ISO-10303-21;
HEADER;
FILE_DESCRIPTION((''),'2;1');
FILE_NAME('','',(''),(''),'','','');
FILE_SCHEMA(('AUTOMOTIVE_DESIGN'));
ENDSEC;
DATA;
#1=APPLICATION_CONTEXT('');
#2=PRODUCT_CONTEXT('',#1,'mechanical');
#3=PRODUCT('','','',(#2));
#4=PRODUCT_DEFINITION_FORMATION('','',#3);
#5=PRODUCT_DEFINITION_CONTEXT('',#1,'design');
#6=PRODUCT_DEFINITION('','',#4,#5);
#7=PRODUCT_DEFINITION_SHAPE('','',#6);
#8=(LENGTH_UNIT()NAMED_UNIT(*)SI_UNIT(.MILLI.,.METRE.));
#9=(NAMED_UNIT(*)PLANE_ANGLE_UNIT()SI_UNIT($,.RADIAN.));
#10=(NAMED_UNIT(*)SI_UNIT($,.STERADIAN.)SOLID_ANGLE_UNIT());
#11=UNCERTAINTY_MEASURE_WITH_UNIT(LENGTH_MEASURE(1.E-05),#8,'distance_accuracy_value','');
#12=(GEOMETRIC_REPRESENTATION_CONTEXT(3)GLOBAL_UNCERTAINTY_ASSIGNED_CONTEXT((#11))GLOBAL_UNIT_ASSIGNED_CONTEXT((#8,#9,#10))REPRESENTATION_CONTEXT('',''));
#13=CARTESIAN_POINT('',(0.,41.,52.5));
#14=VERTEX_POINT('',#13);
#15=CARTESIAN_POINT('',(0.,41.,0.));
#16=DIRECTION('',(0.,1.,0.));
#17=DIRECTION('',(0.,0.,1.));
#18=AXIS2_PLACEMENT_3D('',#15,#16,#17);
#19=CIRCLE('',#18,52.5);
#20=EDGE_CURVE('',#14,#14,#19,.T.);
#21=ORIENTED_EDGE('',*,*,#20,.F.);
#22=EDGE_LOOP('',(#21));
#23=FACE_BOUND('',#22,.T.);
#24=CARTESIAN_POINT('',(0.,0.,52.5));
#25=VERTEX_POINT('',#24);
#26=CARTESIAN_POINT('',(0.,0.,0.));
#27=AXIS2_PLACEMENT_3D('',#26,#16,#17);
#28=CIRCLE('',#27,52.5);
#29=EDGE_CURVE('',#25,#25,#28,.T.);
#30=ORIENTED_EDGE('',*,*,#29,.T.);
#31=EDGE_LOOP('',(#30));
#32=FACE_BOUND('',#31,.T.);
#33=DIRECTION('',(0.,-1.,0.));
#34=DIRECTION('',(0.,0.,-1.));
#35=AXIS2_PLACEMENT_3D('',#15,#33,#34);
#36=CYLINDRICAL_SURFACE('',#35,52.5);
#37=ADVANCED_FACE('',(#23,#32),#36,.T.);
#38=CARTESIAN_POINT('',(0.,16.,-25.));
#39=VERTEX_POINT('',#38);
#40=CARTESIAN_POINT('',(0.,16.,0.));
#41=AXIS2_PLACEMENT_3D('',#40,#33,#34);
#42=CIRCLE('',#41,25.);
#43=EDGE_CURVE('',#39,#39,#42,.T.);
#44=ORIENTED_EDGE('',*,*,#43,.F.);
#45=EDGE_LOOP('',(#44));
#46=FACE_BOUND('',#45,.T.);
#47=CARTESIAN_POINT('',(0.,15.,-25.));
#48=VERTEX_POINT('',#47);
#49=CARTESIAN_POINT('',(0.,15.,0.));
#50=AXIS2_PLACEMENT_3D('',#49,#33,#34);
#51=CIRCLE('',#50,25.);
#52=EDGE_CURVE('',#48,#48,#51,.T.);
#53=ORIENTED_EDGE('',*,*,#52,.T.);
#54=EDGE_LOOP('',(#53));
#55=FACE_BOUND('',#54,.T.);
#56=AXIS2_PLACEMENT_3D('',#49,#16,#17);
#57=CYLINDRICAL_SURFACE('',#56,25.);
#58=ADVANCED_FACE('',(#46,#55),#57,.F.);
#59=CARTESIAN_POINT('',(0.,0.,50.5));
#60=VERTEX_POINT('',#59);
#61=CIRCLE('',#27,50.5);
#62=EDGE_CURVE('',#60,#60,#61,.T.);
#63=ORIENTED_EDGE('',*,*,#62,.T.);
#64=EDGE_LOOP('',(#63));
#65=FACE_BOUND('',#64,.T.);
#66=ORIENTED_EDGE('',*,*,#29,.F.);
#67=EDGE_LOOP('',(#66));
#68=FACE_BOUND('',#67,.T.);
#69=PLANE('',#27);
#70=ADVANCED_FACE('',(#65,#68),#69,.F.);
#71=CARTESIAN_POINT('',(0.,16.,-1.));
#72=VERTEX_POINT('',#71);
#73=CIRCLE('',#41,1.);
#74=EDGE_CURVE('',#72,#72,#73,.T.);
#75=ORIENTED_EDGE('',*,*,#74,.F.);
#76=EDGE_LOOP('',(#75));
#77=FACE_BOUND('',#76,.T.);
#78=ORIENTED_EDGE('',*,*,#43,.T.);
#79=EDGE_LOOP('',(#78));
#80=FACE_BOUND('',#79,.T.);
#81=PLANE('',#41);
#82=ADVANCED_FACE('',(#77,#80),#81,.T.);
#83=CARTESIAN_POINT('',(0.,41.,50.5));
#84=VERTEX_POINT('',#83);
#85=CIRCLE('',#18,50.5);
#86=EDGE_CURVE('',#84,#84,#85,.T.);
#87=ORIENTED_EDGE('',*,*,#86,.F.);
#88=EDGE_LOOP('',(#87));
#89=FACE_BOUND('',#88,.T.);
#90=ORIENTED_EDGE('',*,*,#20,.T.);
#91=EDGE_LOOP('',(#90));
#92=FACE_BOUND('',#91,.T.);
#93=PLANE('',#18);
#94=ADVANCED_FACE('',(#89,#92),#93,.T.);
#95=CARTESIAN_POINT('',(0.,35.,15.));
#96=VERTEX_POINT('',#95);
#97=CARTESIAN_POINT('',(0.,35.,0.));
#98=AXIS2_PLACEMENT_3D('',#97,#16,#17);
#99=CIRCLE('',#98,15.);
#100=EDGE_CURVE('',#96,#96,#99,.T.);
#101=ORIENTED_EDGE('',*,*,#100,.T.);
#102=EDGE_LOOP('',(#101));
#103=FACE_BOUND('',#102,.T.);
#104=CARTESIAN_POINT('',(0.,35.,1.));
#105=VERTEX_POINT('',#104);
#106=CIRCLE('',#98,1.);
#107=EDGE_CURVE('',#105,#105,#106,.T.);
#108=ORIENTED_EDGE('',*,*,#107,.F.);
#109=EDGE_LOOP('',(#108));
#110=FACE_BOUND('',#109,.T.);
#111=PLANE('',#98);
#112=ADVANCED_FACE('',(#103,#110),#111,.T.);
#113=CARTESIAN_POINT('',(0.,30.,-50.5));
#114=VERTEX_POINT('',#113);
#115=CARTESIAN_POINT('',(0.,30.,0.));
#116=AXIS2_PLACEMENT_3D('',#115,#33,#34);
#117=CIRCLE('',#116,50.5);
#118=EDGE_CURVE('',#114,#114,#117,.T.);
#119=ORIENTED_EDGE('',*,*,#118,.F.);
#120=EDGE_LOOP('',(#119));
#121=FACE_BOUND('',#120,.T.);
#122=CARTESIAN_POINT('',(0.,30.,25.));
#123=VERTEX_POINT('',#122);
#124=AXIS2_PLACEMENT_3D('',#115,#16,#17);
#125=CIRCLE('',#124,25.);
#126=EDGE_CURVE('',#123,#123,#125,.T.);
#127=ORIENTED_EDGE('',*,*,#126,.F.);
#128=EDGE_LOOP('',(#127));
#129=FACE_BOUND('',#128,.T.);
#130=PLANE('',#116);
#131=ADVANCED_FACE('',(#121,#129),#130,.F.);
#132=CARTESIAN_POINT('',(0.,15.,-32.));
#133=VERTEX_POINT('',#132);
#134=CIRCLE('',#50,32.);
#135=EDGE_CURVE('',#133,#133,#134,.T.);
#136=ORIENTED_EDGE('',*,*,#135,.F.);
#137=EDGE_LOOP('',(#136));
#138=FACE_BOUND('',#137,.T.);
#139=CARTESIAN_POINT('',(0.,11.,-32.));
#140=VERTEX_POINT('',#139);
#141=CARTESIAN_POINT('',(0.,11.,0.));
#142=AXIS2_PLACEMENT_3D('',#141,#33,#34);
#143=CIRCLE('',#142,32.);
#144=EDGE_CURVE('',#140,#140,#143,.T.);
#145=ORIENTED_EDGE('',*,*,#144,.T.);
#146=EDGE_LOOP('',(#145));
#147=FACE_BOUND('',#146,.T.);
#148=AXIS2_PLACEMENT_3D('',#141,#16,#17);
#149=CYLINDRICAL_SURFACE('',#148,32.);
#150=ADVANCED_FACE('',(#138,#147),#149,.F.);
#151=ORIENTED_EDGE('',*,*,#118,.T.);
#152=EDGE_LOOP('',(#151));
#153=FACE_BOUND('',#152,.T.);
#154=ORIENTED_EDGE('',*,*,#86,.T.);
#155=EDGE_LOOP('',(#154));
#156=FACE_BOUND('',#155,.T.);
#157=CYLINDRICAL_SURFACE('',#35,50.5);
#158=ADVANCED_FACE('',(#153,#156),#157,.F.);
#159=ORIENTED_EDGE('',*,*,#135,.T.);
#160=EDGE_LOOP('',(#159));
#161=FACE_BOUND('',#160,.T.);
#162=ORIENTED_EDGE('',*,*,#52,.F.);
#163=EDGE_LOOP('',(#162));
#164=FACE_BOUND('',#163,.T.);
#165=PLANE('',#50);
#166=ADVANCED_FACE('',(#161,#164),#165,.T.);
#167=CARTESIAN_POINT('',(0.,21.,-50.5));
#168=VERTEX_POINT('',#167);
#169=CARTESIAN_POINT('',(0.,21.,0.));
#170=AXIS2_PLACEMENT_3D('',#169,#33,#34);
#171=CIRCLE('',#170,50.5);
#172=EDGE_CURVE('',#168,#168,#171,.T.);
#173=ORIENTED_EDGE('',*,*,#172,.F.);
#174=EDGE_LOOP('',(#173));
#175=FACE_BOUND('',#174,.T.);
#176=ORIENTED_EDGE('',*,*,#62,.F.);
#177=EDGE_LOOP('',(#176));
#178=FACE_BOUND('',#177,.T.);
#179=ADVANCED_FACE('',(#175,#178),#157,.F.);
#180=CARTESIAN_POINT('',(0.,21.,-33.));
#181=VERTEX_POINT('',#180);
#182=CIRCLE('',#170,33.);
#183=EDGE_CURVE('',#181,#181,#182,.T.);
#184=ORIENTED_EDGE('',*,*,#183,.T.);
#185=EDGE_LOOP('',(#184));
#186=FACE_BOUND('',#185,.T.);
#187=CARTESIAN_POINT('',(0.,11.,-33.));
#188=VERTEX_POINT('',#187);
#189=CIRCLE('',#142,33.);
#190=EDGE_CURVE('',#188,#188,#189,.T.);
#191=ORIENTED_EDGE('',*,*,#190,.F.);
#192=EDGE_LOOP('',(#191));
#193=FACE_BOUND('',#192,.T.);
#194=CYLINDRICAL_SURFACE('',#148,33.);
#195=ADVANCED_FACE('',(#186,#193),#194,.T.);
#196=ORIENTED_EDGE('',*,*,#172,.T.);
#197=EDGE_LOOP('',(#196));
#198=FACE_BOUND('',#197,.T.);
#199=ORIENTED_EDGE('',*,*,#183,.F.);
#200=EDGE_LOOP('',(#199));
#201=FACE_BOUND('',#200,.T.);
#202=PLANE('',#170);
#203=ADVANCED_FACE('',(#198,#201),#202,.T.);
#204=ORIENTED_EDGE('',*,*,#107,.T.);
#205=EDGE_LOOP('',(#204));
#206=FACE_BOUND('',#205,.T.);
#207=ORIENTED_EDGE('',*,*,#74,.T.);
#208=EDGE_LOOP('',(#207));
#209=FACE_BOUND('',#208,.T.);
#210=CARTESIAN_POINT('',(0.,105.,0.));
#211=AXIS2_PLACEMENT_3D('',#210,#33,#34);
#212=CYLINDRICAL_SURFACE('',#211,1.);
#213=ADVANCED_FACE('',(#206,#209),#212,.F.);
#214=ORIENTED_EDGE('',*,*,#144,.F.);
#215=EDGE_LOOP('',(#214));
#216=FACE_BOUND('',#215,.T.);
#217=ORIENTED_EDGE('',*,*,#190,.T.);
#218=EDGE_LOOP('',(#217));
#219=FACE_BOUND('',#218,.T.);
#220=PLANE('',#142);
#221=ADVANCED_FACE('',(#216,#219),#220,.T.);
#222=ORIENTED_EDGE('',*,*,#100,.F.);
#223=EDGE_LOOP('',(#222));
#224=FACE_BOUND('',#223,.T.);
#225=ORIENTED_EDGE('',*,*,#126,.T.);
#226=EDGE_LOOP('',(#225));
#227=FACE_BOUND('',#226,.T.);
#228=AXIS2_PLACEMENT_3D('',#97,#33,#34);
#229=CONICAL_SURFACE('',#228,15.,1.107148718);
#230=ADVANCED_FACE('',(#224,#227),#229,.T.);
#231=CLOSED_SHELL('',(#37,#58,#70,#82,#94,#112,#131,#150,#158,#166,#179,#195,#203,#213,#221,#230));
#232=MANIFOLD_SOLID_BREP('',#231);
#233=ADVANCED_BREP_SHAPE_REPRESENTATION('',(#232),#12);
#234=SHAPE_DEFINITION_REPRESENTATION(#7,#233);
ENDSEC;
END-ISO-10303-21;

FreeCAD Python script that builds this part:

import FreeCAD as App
import Part
import Sketcher

V = App.Vector
Q = App.Units.Quantity

doc = App.newDocument("Part")
body = doc.addObject("PartDesign::Body", "Body")

# Sketch on XZ plane
sketch1 = doc.addObject("Sketcher::SketchObject", "Sketch")
body.addObject(sketch1)
sketch1.AttachmentSupport = (doc.XZ_Plane, [""])
sketch1.MapMode = "FlatFace"
sketch1.addGeometry(Part.Circle(V(0, 0, 0), V(0, 0, 1), 52), False)
sketch1.addGeometry(Part.Circle(V(0, 0, 0), V(0, 0, 1), 50), False)
sketch1.addConstraint(Sketcher.Constraint("Coincident", 0, 3, -1, 1))
sketch1.addConstraint(Sketcher.Constraint("Coincident", 1, 3, -1, 1))
sketch1.addConstraint(Sketcher.Constraint("Diameter", 0, Q("105 mm")))
sketch1.addConstraint(Sketcher.Constraint("Diameter", 1, Q("101 mm")))
pad1 = doc.addObject("PartDesign::Pad", "Pad")
body.addObject(pad1)
pad1.Profile = sketch1
pad1.Length = 41
pad1.Reversed = True

# Sketch on XZ plane
sketch2 = doc.addObject("Sketcher::SketchObject", "Sketch001")
body.addObject(sketch2)
sketch2.AttachmentSupport = (doc.XZ_Plane, [""])
sketch2.MapMode = "FlatFace"
sketch2.AttachmentOffset = App.Placement(V(0, 0, -21), App.Rotation())
sketch2.addGeometry(Part.Circle(V(0, 0, 0), V(0, 0, 1), 50), False)
sketch2.addConstraint(Sketcher.Constraint("Coincident", 0, 3, -1, 1))
sketch2.addConstraint(Sketcher.Constraint("Diameter", 0, Q("101 mm")))
pad2 = doc.addObject("PartDesign::Pad", "Pad001")
body.addObject(pad2)
pad2.Profile = sketch2
pad2.Length = 9
pad2.Reversed = True

# Sketch on XZ plane
sketch3 = doc.addObject("Sketcher::SketchObject", "Sketch002")
body.addObject(sketch3)
sketch3.AttachmentSupport = (doc.XZ_Plane, [""])
sketch3.MapMode = "FlatFace"
sketch3.AttachmentOffset = App.Placement(V(0, 0, -35), App.Rotation())
sketch3.addGeometry(Part.Circle(V(0, 0, 0), V(0, 0, 1), 15), False)
sketch3.addConstraint(Sketcher.Constraint("Coincident", 0, 3, -1, 1))
sketch3.addConstraint(Sketcher.Constraint("Diameter", 0, Q("30 mm")))

# Sketch on XZ plane
sketch4 = doc.addObject("Sketcher::SketchObject", "Sketch003")
body.addObject(sketch4)
sketch4.AttachmentSupport = (doc.XZ_Plane, [""])
sketch4.MapMode = "FlatFace"
sketch4.AttachmentOffset = App.Placement(V(0, 0, -30), App.Rotation())
sketch4.addGeometry(Part.Circle(V(0, 0, 0), V(0, 0, 1), 25), False)
sketch4.addConstraint(Sketcher.Constraint("Coincident", 0, 3, -1, 1))
sketch4.addConstraint(Sketcher.Constraint("Diameter", 0, Q("50 mm")))

additiveloft = doc.addObject("PartDesign::AdditiveLoft", "AdditiveLoft")
body.addObject(additiveloft)
additiveloft.Profile = sketch3
additiveloft.Sections = [sketch4]

# Sketch on XZ plane
sketch5 = doc.addObject("Sketcher::SketchObject", "Sketch004")
body.addObject(sketch5)
sketch5.AttachmentSupport = (doc.XZ_Plane, [""])
sketch5.MapMode = "FlatFace"
sketch5.AttachmentOffset = App.Placement(V(0, 0, -21), App.Rotation())
sketch5.addGeometry(Part.Circle(V(0, 0, 0), V(0, 0, 1), 33), False)
sketch5.addGeometry(Part.Circle(V(0, 0, 0), V(0, 0, 1), 32), False)
sketch5.addConstraint(Sketcher.Constraint("Coincident", 0, 3, -1, 1))
sketch5.addConstraint(Sketcher.Constraint("Coincident", 1, 3, -1, 1))
sketch5.addConstraint(Sketcher.Constraint("Diameter", 0, Q("66 mm")))
sketch5.addConstraint(Sketcher.Constraint("Diameter", 1, Q("64 mm")))
pad3 = doc.addObject("PartDesign::Pad", "Pad002")
body.addObject(pad3)
pad3.Profile = sketch5
pad3.Length = 10

# Sketch on XZ plane
sketch6 = doc.addObject("Sketcher::SketchObject", "Sketch005")
body.addObject(sketch6)
sketch6.AttachmentSupport = (doc.XZ_Plane, [""])
sketch6.MapMode = "FlatFace"
sketch6.AttachmentOffset = App.Placement(V(0, 0, -21), App.Rotation())
sketch6.addGeometry(Part.Circle(V(0, 0, 0), V(0, 0, 1), 32), False)
sketch6.addGeometry(Part.Circle(V(0, 0, 0), V(0, 0, 1), 25), False)
sketch6.addConstraint(Sketcher.Constraint("Coincident", 0, 3, -1, 1))
sketch6.addConstraint(Sketcher.Constraint("Coincident", 1, 3, -1, 1))
sketch6.addConstraint(Sketcher.Constraint("Diameter", 0, Q("64 mm")))
sketch6.addConstraint(Sketcher.Constraint("Diameter", 1, Q("50 mm")))
pad4 = doc.addObject("PartDesign::Pad", "Pad003")
body.addObject(pad4)
pad4.Profile = sketch6
pad4.Length = 6

# Sketch on XZ plane
sketch7 = doc.addObject("Sketcher::SketchObject", "Sketch006")
body.addObject(sketch7)
sketch7.AttachmentSupport = (doc.XZ_Plane, [""])
sketch7.MapMode = "FlatFace"
sketch7.AttachmentOffset = App.Placement(V(0, 0, -21), App.Rotation())
sketch7.addGeometry(Part.Circle(V(0, 0, 0), V(0, 0, 1), 25), False)
sketch7.addConstraint(Sketcher.Constraint("Coincident", 0, 3, -1, 1))
sketch7.addConstraint(Sketcher.Constraint("Diameter", 0, Q("50 mm")))
pad5 = doc.addObject("PartDesign::Pad", "Pad004")
body.addObject(pad5)
pad5.Profile = sketch7
pad5.Length = 5

# Sketch on XZ plane
sketch8 = doc.addObject("Sketcher::SketchObject", "Sketch007")
body.addObject(sketch8)
sketch8.AttachmentSupport = (doc.XZ_Plane, [""])
sketch8.MapMode = "FlatFace"
sketch8.AttachmentOffset = App.Placement(V(0, 0, -16), App.Rotation())
sketch8.addGeometry(Part.Circle(V(0, 0, 0), V(0, 0, 1), 1), False)
sketch8.addConstraint(Sketcher.Constraint("Coincident", 0, 3, -1, 1))
sketch8.addConstraint(Sketcher.Constraint("Diameter", 0, Q("2 mm")))
pocket1 = doc.addObject("PartDesign::Pocket", "Pocket")
body.addObject(pocket1)
pocket1.Profile = sketch8
pocket1.Length = 89

doc.recompute()
